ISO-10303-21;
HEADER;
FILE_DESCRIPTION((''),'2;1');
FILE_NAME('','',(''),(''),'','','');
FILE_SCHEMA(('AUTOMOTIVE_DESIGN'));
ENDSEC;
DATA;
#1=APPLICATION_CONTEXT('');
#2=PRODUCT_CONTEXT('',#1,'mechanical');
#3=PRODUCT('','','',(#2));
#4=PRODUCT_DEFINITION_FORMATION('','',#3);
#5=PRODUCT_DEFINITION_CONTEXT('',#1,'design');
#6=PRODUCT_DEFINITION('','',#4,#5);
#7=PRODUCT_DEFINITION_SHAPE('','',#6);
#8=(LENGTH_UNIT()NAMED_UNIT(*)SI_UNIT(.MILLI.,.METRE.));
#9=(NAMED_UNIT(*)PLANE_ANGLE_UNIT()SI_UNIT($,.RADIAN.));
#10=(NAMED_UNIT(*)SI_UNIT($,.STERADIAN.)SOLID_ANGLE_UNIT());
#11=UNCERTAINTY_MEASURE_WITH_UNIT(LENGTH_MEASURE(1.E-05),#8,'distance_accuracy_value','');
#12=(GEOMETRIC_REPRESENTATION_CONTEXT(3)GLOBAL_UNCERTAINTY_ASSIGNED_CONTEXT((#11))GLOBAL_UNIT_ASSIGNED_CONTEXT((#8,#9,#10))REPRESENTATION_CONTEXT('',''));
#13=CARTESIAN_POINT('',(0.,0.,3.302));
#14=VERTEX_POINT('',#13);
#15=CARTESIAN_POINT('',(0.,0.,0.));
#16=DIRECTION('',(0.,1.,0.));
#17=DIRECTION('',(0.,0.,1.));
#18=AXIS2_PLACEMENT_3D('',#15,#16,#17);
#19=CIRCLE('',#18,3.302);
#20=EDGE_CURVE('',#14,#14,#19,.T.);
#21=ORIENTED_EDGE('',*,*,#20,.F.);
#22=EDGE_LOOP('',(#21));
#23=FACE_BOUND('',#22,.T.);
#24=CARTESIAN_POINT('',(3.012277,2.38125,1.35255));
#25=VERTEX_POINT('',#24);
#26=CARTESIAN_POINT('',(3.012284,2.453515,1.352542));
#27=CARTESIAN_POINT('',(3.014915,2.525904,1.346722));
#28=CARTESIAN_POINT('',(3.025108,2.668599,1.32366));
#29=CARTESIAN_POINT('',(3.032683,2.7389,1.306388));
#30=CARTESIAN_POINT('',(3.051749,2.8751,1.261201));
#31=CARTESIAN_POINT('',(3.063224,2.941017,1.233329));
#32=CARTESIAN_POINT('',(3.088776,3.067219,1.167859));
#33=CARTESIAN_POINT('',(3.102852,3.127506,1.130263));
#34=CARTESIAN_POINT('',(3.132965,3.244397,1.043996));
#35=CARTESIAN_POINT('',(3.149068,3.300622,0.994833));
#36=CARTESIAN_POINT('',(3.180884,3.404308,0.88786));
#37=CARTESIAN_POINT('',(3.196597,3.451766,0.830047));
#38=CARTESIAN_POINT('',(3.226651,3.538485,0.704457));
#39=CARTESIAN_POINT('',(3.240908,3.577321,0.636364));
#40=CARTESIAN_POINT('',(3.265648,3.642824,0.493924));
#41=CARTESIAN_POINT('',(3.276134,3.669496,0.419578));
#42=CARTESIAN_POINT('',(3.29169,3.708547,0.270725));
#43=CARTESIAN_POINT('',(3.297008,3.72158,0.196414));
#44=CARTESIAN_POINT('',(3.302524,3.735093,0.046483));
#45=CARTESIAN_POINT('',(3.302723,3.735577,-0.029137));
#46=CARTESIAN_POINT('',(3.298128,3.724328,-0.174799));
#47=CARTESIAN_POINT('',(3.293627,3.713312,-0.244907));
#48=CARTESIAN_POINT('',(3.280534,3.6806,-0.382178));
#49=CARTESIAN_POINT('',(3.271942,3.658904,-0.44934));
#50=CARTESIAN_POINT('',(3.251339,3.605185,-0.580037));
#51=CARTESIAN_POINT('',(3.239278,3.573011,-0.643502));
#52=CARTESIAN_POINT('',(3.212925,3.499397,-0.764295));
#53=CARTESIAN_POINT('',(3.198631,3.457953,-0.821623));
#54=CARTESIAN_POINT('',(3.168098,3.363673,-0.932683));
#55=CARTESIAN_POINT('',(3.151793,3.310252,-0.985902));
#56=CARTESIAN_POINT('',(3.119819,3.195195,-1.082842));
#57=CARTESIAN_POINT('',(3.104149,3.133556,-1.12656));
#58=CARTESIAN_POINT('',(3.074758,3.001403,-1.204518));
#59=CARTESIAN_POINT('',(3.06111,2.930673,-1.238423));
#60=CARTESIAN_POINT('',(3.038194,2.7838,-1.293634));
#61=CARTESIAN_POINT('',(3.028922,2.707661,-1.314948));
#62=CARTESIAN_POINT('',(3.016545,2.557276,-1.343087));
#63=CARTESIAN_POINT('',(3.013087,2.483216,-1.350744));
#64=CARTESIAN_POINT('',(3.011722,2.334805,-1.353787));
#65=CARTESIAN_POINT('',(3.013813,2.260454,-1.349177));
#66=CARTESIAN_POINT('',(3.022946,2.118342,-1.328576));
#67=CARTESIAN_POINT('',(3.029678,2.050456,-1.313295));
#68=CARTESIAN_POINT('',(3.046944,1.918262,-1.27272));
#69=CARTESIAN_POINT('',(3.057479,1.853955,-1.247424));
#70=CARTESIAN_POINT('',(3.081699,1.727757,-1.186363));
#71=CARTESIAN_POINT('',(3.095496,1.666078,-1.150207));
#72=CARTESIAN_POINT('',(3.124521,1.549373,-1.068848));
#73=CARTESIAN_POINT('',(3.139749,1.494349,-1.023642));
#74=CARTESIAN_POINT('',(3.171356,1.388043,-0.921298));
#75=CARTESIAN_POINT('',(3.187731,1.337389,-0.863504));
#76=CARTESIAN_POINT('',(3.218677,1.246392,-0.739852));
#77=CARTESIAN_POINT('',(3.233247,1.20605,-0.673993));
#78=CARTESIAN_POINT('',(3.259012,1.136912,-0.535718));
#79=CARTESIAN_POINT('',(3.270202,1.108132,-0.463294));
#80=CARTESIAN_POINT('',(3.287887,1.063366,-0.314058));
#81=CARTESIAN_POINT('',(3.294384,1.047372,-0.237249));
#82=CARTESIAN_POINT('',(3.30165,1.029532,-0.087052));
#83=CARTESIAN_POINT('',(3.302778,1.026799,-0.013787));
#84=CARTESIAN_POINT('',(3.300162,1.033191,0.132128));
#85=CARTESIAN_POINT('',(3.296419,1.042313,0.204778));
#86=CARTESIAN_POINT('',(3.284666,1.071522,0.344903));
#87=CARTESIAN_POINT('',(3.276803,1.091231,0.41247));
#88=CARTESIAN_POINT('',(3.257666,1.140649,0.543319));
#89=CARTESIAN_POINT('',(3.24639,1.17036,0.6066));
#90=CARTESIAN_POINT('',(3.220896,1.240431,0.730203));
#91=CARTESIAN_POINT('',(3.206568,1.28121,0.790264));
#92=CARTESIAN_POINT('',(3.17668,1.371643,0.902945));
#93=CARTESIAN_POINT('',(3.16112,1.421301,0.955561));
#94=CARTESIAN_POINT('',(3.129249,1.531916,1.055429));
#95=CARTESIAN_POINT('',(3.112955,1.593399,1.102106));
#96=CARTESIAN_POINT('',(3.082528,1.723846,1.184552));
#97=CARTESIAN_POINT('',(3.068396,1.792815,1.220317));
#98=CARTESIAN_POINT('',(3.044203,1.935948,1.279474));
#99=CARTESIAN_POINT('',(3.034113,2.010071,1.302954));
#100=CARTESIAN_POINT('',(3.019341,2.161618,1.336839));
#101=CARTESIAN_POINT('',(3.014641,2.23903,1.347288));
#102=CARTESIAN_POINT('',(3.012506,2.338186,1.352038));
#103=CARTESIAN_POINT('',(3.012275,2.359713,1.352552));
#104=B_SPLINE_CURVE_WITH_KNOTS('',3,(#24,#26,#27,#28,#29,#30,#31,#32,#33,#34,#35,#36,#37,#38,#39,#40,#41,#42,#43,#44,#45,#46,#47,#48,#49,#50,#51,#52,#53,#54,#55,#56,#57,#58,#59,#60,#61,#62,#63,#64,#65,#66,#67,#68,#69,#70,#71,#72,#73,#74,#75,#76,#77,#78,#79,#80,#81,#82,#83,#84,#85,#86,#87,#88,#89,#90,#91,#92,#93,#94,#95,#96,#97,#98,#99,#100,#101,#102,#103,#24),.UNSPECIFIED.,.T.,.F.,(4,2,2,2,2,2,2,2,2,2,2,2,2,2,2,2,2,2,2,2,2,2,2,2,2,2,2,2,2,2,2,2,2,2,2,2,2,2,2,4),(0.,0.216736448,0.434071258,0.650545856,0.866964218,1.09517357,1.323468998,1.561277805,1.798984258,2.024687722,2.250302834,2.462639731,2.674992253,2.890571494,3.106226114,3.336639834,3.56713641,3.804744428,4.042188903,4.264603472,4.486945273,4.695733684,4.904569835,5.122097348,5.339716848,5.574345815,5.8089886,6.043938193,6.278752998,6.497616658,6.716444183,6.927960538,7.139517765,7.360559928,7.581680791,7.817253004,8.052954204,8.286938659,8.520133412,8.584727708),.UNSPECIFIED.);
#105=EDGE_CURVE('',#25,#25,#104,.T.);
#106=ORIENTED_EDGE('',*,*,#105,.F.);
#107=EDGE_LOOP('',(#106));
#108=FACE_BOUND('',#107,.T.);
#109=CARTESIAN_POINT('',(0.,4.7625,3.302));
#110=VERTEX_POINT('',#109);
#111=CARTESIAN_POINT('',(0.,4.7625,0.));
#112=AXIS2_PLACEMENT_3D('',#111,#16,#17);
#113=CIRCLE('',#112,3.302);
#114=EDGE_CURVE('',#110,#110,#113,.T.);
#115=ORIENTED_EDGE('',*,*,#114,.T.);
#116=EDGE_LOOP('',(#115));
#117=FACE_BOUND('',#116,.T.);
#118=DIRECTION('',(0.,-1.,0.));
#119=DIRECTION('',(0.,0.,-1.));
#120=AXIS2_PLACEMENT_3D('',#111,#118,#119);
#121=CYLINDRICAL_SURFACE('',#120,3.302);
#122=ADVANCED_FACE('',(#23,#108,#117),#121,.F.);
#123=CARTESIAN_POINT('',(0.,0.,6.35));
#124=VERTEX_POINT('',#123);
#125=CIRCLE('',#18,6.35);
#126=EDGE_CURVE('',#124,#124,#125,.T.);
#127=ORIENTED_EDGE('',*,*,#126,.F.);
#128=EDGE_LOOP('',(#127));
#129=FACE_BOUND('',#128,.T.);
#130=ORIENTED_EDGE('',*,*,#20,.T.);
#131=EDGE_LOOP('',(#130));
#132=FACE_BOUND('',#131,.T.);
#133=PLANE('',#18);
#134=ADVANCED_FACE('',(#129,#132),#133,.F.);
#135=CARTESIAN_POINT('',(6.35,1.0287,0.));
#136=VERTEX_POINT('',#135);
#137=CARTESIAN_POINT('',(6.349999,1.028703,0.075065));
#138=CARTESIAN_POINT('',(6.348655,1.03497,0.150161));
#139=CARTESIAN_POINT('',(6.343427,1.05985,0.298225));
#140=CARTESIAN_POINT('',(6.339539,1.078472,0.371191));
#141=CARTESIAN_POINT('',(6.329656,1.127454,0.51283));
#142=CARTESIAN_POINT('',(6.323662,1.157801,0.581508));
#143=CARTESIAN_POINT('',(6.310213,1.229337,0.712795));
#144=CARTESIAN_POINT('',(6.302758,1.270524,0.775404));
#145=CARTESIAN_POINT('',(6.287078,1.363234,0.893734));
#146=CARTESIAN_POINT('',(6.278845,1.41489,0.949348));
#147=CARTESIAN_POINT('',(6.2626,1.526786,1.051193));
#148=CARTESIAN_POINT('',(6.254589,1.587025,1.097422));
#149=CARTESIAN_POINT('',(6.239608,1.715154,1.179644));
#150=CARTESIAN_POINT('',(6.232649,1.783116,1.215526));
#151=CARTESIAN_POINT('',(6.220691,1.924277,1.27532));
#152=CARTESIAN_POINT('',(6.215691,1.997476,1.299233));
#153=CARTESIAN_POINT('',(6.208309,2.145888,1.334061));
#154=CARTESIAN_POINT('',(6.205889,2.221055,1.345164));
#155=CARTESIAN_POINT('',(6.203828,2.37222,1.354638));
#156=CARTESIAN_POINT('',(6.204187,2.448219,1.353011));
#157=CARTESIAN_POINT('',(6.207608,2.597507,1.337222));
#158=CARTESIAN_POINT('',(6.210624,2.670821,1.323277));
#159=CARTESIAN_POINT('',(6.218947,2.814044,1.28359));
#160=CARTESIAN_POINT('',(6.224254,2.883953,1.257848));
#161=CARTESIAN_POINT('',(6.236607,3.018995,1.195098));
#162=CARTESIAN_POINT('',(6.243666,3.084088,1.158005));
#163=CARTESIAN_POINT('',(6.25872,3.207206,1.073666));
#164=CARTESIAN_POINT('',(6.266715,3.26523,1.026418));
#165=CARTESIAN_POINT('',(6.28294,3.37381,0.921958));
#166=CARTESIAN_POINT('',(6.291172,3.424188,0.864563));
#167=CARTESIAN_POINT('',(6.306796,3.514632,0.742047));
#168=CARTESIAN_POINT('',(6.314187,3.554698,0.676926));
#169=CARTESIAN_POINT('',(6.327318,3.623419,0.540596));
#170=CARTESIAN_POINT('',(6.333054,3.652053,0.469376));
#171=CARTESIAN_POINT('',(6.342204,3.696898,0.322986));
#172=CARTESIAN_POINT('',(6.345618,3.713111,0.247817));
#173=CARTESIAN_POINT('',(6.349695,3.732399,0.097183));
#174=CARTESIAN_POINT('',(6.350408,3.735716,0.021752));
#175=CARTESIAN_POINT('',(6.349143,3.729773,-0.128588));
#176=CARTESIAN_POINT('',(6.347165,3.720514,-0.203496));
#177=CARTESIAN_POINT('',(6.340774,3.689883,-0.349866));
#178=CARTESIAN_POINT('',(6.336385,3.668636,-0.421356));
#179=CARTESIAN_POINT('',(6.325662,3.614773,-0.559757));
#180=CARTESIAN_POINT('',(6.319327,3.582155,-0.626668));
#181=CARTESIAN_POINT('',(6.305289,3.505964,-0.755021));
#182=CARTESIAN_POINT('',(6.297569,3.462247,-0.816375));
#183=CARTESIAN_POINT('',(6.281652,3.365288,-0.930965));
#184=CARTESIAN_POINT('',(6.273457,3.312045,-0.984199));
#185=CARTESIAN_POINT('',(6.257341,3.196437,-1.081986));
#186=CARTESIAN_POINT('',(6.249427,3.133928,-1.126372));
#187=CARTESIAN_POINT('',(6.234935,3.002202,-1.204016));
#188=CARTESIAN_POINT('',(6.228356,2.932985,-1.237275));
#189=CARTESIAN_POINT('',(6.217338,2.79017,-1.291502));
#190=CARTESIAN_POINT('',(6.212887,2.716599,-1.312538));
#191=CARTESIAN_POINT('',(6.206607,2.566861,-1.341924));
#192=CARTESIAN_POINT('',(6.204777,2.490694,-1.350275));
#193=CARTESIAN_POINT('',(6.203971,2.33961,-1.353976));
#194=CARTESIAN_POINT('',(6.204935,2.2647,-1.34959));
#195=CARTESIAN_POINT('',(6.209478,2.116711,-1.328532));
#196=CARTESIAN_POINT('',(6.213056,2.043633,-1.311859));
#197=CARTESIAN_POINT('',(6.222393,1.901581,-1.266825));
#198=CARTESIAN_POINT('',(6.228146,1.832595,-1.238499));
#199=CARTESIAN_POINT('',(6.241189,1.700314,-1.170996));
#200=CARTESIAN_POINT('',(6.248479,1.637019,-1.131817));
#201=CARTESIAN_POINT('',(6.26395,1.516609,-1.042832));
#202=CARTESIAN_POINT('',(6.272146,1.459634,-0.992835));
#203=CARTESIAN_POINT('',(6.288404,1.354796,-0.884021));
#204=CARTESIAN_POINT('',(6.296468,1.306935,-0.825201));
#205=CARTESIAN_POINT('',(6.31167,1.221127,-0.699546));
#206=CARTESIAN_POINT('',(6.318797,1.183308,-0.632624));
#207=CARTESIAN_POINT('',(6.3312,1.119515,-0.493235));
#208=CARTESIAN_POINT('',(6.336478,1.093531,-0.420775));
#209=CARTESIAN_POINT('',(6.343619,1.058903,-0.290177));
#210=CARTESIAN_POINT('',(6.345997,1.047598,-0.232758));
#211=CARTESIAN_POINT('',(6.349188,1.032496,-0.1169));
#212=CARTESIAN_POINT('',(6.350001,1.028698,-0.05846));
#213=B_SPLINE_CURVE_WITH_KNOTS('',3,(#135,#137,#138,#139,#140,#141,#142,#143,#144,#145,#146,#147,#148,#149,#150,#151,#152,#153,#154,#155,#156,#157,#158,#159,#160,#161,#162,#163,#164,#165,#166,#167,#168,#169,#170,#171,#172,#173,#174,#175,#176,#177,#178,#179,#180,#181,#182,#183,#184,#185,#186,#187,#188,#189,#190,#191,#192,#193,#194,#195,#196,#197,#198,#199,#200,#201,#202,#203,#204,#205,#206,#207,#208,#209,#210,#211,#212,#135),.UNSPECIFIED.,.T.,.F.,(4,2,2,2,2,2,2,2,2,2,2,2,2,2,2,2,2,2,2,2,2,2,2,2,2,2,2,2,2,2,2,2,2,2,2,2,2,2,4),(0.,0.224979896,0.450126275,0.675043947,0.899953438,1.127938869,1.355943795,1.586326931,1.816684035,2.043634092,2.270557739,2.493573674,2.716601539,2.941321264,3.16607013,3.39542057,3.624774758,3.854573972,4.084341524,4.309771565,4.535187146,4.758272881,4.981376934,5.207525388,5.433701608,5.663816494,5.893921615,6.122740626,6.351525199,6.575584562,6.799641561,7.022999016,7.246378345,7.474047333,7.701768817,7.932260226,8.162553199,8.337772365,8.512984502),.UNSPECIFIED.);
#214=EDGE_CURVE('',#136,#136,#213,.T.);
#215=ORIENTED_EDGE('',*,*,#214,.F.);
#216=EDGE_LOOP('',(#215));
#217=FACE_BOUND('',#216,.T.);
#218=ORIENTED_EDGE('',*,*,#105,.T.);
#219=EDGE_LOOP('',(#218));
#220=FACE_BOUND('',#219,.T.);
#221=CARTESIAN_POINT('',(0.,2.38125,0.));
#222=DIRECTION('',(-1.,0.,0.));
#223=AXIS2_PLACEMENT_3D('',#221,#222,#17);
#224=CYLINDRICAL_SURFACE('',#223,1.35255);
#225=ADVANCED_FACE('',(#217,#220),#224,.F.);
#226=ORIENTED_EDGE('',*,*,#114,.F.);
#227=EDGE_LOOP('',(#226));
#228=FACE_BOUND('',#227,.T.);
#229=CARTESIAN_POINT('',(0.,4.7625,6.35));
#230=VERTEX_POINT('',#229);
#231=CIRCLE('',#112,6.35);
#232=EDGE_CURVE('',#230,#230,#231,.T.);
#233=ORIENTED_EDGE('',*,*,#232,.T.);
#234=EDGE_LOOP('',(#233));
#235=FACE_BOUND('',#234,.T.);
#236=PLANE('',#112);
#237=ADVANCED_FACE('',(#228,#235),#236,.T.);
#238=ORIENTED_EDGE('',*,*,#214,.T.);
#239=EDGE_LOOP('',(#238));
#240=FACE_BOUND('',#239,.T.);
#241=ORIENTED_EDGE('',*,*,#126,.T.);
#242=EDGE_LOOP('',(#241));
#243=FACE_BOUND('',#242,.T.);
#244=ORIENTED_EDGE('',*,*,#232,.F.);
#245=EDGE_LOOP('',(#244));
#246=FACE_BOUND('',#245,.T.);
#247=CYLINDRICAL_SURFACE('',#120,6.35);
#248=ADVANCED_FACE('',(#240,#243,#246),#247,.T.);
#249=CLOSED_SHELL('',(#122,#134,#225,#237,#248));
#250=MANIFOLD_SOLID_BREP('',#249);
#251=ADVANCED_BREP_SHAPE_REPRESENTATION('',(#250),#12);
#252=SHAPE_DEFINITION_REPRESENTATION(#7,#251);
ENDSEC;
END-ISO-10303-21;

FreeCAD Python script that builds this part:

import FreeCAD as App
import Part
import Sketcher

V = App.Vector
Q = App.Units.Quantity

doc = App.newDocument("Part")
body = doc.addObject("PartDesign::Body", "Body")

sketch1 = body.newObject("Sketcher::SketchObject", "Sketch")
sketch1.AttachmentSupport = (doc.getObject("XZ_Plane"), [""])
sketch1.MapMode = "FlatFace"
sketch1.addGeometry([
    Part.Circle(V(0, 0, 0), V(0, 0, 1), 6.35),
    Part.Circle(V(0, 0, 0), V(0, 0, 1), 3.302),
], False)
sketch1.addConstraint([
    Sketcher.Constraint("Coincident", 0, 3, -1, 1),
    Sketcher.Constraint("Coincident", 1, 3, -1, 1),
    Sketcher.Constraint("Diameter", 0, Q("0.5 in")),
    Sketcher.Constraint("Diameter", 1, Q("0.26 in")),
])
pad1 = body.newObject("PartDesign::Pad", "Pad")
pad1.Profile = sketch1
pad1.Length = Q("0.1875 in")
pad1.Reversed = True

sketch2 = body.newObject("Sketcher::SketchObject", "Sketch001")
sketch2.AttachmentSupport = (doc.getObject("XZ_Plane"), [""])
sketch2.MapMode = "FlatFace"
sketch2.AttachmentOffset = App.Placement(V(0, 0, -0.09375 * 25.4), App.Rotation())
sketch2.addGeometry([
    Part.LineSegment(V(6.35, 0, 0), V(0, 0, 0)),
    Part.LineSegment(V(0, 0, 0), V(0, 1.35255, 0)),
    Part.LineSegment(V(0, 1.35255, 0), V(6.35, 1.35255, 0)),
    Part.LineSegment(V(6.35, 1.35255, 0), V(6.35, 0, 0)),
], False)
sketch2.addConstraint([
    Sketcher.Constraint("Coincident", 0, 2, 1, 1),
    Sketcher.Constraint("Coincident", 1, 2, 2, 1),
    Sketcher.Constraint("Coincident", 2, 2, 3, 1),
    Sketcher.Constraint("Coincident", 3, 2, 0, 1),
    Sketcher.Constraint("Horizontal", 0),
    Sketcher.Constraint("Vertical", 1),
    Sketcher.Constraint("Horizontal", 2),
    Sketcher.Constraint("Vertical", 3),
    Sketcher.Constraint("Coincident", 0, 2, -1, 1),
    Sketcher.Constraint("DistanceX", 0, 2, 0, 1, Q("0.25 in")),
    Sketcher.Constraint("DistanceY", 1, 1, 1, 2, Q("1.35255 mm")),
])
groove = body.newObject("PartDesign::Groove", "Groove")
groove.Profile = sketch2
groove.ReferenceAxis = (sketch2, ["H_Axis"])
groove.Angle = 360

doc.recompute()
